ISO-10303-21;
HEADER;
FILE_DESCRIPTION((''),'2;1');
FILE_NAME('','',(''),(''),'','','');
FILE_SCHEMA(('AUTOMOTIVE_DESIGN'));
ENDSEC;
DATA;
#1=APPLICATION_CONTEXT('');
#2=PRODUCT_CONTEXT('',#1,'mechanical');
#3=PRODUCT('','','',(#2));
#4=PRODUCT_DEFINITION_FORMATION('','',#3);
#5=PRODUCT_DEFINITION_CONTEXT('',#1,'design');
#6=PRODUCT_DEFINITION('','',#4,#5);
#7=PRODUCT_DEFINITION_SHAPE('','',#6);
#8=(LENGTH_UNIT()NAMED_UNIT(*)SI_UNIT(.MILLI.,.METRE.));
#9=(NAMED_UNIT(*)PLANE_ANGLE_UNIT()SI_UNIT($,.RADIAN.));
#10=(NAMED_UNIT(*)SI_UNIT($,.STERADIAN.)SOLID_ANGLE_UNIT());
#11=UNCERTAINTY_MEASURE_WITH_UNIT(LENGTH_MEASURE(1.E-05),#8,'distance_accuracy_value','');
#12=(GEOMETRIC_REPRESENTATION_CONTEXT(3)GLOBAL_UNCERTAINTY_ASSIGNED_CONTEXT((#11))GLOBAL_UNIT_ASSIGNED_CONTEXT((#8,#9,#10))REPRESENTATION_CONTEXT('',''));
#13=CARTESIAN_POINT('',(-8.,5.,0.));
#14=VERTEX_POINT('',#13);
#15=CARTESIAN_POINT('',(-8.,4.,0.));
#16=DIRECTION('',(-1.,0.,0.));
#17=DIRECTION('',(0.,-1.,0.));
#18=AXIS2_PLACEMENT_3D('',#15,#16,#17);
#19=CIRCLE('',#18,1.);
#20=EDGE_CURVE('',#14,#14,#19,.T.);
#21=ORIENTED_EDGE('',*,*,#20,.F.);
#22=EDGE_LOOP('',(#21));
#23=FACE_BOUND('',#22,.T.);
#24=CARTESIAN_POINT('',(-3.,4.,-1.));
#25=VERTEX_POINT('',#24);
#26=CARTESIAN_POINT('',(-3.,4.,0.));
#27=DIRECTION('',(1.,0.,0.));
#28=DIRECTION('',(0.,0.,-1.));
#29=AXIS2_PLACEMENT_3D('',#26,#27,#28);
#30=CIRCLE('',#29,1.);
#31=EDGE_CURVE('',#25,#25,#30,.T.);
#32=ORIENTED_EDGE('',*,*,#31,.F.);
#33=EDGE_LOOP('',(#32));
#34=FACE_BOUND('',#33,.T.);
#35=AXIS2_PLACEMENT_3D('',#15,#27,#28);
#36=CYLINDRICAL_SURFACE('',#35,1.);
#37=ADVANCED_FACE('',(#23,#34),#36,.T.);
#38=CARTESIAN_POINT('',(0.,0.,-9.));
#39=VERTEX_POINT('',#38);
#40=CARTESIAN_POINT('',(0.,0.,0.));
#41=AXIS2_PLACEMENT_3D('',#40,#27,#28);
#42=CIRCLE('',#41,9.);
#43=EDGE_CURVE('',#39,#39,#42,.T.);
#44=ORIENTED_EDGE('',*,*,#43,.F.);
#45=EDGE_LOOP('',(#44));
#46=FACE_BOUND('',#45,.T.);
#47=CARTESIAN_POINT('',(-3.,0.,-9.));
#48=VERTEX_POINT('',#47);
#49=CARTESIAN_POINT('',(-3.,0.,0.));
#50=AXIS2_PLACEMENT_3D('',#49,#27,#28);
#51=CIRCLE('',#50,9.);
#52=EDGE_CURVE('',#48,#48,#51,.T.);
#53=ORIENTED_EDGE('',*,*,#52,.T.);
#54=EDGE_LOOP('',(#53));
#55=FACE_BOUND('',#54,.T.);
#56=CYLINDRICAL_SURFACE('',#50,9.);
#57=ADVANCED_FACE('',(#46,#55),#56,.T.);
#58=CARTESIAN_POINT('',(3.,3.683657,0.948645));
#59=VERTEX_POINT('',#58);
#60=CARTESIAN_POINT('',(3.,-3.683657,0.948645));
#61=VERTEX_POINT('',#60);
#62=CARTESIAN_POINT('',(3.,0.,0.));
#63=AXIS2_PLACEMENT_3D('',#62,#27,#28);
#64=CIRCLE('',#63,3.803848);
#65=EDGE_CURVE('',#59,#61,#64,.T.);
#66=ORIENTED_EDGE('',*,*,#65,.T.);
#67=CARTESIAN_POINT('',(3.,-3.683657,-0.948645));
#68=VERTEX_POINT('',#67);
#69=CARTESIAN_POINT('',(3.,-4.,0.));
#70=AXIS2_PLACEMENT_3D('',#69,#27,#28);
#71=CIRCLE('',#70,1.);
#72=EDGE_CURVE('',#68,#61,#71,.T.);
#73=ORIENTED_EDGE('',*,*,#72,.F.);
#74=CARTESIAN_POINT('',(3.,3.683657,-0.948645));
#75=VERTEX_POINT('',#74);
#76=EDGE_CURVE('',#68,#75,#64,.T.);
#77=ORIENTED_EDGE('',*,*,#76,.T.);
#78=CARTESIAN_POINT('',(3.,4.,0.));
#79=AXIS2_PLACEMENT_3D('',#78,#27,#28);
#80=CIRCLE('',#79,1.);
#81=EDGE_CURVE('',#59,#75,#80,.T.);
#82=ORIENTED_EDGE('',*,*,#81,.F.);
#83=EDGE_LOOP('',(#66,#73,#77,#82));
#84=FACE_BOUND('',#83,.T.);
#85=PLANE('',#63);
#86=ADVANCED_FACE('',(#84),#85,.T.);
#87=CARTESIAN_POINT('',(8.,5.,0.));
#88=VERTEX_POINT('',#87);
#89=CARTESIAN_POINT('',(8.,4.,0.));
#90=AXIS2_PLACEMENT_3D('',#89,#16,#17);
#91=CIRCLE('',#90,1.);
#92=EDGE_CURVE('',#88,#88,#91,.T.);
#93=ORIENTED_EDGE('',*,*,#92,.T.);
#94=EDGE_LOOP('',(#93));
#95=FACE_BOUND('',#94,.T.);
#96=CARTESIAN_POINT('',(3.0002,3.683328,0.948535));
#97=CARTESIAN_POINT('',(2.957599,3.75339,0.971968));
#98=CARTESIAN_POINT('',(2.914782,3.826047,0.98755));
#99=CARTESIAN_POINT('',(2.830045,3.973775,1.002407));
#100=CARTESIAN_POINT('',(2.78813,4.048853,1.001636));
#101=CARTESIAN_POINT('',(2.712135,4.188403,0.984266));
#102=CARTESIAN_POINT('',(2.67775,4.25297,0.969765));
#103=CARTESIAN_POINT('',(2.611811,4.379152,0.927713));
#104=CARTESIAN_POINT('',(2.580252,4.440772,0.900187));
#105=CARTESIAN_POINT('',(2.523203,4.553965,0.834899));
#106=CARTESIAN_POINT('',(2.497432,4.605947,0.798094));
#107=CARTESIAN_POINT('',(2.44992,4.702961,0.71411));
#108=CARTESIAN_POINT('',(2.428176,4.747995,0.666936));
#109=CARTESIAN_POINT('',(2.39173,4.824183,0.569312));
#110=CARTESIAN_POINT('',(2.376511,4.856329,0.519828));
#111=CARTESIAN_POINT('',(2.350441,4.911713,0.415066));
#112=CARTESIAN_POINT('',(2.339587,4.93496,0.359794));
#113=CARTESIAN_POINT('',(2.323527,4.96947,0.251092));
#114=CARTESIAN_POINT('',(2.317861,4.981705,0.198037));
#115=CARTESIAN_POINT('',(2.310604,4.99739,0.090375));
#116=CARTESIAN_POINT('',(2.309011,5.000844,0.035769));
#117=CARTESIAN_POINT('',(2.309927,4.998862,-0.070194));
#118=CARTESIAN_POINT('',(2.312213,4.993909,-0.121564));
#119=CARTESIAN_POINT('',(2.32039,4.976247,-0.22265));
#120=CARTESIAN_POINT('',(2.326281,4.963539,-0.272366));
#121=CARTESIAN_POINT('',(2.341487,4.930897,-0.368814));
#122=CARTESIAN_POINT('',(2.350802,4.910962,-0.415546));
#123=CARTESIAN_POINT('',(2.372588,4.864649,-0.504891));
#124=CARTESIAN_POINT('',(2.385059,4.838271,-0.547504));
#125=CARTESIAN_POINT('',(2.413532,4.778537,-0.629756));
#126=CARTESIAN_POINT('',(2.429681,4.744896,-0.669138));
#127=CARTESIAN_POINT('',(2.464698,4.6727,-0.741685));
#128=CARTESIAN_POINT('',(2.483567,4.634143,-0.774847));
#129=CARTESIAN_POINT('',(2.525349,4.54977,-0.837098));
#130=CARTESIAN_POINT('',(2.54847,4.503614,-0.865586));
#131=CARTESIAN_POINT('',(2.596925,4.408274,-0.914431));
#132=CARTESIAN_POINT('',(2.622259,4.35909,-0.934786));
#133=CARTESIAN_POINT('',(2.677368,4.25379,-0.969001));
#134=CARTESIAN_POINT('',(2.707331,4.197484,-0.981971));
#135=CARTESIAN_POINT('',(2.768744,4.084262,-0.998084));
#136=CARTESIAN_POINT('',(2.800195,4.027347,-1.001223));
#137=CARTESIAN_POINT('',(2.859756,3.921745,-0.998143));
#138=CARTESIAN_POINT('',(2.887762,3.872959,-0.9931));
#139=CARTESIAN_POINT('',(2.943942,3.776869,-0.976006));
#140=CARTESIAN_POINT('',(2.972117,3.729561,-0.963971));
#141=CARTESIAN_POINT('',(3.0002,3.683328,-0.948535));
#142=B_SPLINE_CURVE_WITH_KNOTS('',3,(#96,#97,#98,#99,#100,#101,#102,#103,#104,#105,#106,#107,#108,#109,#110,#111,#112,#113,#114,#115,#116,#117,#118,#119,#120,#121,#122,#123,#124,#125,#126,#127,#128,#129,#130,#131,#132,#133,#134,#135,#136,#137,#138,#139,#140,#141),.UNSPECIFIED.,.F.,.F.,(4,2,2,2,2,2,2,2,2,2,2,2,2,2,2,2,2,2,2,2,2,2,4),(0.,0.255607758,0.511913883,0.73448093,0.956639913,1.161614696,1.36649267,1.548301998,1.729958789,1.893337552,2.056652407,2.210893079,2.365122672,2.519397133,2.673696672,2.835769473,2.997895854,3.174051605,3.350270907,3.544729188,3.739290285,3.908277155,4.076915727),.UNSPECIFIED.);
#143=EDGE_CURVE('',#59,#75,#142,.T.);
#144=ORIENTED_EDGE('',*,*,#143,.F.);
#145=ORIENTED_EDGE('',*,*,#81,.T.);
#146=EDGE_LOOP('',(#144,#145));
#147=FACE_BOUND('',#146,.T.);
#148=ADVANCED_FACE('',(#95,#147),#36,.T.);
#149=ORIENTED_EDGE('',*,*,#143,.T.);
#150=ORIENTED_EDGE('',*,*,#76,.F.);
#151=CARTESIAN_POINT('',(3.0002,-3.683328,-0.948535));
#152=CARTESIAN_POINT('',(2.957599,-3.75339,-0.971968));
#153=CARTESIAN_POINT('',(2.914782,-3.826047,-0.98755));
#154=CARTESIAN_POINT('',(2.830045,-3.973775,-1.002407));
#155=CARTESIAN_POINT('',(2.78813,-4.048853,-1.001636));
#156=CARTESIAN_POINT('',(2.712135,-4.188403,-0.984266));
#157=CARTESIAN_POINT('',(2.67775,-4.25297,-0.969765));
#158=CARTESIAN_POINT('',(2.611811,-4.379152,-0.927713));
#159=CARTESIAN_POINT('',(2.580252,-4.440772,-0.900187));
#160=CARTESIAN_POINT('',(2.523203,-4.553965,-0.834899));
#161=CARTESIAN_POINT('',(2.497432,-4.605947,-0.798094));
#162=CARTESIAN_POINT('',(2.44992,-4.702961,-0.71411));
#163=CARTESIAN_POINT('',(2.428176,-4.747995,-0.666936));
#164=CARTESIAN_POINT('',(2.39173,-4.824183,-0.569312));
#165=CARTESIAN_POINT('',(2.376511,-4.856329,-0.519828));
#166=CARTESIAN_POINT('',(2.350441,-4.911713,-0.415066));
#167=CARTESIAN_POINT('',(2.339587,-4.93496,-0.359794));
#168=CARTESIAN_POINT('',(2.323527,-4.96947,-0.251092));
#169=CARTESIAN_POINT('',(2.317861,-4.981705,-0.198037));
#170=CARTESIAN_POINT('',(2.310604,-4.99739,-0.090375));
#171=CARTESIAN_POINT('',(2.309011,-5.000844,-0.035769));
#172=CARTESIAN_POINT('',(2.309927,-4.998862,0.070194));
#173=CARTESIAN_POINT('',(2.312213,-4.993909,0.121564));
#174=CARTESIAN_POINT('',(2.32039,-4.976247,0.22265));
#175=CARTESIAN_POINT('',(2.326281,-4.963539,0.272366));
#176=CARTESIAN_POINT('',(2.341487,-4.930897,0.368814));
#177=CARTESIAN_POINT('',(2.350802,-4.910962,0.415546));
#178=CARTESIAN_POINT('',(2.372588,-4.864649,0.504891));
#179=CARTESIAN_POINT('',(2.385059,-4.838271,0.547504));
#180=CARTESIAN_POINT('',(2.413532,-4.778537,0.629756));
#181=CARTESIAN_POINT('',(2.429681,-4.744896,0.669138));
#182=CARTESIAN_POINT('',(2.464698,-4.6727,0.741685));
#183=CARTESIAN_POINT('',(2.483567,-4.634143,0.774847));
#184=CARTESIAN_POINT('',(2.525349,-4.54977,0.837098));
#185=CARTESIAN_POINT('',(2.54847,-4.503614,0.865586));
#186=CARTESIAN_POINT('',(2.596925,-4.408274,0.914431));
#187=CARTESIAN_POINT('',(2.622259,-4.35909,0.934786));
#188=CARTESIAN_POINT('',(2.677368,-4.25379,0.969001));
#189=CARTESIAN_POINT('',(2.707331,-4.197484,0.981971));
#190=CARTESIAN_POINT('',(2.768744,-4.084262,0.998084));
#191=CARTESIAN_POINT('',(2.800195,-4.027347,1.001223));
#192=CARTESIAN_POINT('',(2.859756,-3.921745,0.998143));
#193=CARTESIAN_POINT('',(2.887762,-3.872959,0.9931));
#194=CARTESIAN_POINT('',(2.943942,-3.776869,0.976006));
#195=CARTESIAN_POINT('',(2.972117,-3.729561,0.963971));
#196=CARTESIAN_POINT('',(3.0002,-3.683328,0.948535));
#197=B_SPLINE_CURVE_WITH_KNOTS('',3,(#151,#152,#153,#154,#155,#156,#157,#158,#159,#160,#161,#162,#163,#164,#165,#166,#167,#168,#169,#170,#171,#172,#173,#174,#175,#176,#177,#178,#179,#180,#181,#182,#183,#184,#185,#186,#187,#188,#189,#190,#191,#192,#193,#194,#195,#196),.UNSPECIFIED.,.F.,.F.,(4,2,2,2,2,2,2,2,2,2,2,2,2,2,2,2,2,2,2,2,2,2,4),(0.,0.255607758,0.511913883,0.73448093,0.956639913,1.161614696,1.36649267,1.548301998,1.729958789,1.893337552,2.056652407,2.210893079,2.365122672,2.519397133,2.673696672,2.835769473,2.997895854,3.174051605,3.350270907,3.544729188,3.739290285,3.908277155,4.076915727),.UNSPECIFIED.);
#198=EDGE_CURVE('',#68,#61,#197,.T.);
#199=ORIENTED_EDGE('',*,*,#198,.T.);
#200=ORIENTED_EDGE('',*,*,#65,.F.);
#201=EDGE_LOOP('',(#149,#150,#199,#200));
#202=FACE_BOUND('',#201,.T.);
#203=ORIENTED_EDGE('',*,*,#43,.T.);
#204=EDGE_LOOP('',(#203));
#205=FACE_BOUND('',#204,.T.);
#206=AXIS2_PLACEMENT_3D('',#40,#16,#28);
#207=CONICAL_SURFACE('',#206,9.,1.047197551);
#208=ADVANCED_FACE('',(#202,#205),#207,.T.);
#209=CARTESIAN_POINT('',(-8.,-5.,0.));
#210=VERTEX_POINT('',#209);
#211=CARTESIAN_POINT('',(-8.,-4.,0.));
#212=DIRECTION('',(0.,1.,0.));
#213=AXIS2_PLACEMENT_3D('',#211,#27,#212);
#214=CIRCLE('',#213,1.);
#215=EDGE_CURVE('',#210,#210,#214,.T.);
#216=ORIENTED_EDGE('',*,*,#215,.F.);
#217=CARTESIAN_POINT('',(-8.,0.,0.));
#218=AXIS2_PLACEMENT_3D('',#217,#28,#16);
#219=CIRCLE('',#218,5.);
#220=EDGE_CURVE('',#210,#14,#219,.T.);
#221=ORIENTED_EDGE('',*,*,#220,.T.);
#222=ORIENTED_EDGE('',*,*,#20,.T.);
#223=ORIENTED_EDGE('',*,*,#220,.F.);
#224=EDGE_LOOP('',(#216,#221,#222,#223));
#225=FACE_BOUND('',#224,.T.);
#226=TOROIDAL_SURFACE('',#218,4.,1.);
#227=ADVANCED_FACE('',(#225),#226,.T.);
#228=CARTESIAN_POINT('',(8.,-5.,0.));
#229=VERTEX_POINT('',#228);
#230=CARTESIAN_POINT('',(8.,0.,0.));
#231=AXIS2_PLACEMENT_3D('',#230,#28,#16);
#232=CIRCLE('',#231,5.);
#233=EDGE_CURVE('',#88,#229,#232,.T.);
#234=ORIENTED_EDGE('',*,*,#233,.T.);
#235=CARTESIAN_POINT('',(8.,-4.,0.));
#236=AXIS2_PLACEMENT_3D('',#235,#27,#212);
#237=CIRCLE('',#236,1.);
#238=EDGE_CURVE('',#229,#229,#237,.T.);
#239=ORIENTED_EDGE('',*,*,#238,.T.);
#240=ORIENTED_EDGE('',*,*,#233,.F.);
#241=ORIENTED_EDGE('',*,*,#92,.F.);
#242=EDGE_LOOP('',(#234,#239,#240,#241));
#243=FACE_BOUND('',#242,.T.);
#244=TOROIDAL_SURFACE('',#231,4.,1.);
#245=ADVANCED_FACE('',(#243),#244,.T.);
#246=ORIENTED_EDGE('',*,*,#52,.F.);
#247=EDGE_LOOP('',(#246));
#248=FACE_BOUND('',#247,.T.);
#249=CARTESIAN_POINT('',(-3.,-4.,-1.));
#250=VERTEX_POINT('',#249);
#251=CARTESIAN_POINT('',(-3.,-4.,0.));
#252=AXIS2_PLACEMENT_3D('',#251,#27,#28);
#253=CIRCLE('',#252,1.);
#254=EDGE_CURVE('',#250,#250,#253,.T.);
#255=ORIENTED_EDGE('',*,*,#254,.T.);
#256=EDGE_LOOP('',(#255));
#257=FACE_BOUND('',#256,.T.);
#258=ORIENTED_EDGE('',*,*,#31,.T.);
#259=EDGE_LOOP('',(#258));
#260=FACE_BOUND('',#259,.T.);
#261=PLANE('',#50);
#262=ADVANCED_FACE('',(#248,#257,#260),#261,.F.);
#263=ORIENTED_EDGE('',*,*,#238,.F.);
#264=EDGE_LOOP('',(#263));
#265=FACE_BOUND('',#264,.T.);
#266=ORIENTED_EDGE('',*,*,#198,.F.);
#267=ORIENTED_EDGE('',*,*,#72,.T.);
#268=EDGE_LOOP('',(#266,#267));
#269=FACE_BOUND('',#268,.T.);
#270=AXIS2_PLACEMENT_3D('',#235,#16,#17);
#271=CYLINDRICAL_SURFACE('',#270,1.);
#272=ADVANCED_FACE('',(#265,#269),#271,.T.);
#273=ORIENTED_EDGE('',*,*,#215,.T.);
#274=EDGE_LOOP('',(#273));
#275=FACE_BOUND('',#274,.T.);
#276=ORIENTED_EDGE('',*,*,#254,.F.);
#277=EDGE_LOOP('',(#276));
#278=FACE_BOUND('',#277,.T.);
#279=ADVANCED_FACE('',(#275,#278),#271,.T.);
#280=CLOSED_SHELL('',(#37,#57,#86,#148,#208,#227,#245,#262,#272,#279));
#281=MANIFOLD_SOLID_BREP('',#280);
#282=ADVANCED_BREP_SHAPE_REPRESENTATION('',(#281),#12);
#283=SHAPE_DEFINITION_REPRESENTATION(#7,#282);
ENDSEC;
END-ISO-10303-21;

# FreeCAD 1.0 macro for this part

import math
import FreeCAD as App
import Part
import Sketcher

V = App.Vector

doc = App.newDocument("Part")
body = doc.addObject("PartDesign::Body", "Body")

sketch1 = body.newObject("Sketcher::SketchObject", "Sketch")
sketch1.AttachmentSupport = (doc.getObject("YZ_Plane"), [""])
sketch1.MapMode = "FlatFace"
sketch1.AttachmentOffset = App.Placement(V(0, 0, 8), App.Rotation())
sketch1.addGeometry(Part.Circle(V(4, 0, 0), V(0, 0, 1), 1), False)
sketch1.addConstraint(Sketcher.Constraint("PointOnObject", 0, 3, -1))
sketch1.addConstraint(Sketcher.Constraint("Diameter", 0, 2.0))
sketch1.addConstraint(Sketcher.Constraint("DistanceX", -1, 1, 0, 3, 4.0))

sketch2 = body.newObject("Sketcher::SketchObject", "Sketch001")
sketch2.AttachmentSupport = (doc.getObject("XY_Plane"), [""])
sketch2.MapMode = "FlatFace"
sketch2.addGeometry(Part.LineSegment(V(8, 4, 0), V(-8, 4, 0)), False)
sketch2.addGeometry(Part.ArcOfCircle(Part.Circle(V(-8, 0, 0), V(0, 0, 1), 4), math.radians(90), math.radians(270)), False)
sketch2.addGeometry(Part.LineSegment(V(-8, -4, 0), V(8, -4, 0)), False)
sketch2.addGeometry(Part.ArcOfCircle(Part.Circle(V(8, 0, 0), V(0, 0, 1), 4), math.radians(-90), math.radians(90)), False)
sketch2.addConstraint(Sketcher.Constraint("Tangent", 0, 2, 1, 1))
sketch2.addConstraint(Sketcher.Constraint("Tangent", 1, 2, 2, 1))
sketch2.addConstraint(Sketcher.Constraint("Tangent", 2, 2, 3, 1))
sketch2.addConstraint(Sketcher.Constraint("Tangent", 3, 2, 0, 1))
sketch2.addConstraint(Sketcher.Constraint("Horizontal", 0))
sketch2.addConstraint(Sketcher.Constraint("Horizontal", 2))
sketch2.addConstraint(Sketcher.Constraint("Symmetric", 1, 3, 3, 3, -1, 1))
sketch2.addConstraint(Sketcher.Constraint("Radius", 1, 4.0))
sketch2.addConstraint(Sketcher.Constraint("DistanceX", 0, 2, 0, 1, 16.0))
doc.recompute()

additivepipe = body.newObject("PartDesign::AdditivePipe", "AdditivePipe")
additivepipe.Profile = sketch1
additivepipe.Spine = (sketch2, ["Edge1", "Edge2", "Edge3", "Edge4"])

sketch3 = body.newObject("Sketcher::SketchObject", "Sketch002")
sketch3.AttachmentSupport = (doc.getObject("YZ_Plane"), [""])
sketch3.MapMode = "FlatFace"
sketch3.addGeometry(Part.Circle(V(0, 0, 0), V(0, 0, 1), 9), False)
sketch3.addConstraint(Sketcher.Constraint("Coincident", 0, 3, -1, 1))
sketch3.addConstraint(Sketcher.Constraint("Diameter", 0, 18.0))
pad1 = body.newObject("PartDesign::Pad", "Pad")
pad1.Profile = sketch3
pad1.Length = 3
pad1.TaperAngle = -60

sketch4 = body.newObject("Sketcher::SketchObject", "Sketch003")
sketch4.AttachmentSupport = (doc.getObject("YZ_Plane"), [""])
sketch4.MapMode = "FlatFace"
sketch4.addGeometry(Part.Circle(V(0, 0, 0), V(0, 0, 1), 9), False)
sketch4.addConstraint(Sketcher.Constraint("Coincident", 0, 3, -1, 1))
sketch4.addConstraint(Sketcher.Constraint("Diameter", 0, 18.0))
pad2 = body.newObject("PartDesign::Pad", "Pad001")
pad2.Profile = sketch4
pad2.Length = 3
pad2.Reversed = True

doc.recompute()
